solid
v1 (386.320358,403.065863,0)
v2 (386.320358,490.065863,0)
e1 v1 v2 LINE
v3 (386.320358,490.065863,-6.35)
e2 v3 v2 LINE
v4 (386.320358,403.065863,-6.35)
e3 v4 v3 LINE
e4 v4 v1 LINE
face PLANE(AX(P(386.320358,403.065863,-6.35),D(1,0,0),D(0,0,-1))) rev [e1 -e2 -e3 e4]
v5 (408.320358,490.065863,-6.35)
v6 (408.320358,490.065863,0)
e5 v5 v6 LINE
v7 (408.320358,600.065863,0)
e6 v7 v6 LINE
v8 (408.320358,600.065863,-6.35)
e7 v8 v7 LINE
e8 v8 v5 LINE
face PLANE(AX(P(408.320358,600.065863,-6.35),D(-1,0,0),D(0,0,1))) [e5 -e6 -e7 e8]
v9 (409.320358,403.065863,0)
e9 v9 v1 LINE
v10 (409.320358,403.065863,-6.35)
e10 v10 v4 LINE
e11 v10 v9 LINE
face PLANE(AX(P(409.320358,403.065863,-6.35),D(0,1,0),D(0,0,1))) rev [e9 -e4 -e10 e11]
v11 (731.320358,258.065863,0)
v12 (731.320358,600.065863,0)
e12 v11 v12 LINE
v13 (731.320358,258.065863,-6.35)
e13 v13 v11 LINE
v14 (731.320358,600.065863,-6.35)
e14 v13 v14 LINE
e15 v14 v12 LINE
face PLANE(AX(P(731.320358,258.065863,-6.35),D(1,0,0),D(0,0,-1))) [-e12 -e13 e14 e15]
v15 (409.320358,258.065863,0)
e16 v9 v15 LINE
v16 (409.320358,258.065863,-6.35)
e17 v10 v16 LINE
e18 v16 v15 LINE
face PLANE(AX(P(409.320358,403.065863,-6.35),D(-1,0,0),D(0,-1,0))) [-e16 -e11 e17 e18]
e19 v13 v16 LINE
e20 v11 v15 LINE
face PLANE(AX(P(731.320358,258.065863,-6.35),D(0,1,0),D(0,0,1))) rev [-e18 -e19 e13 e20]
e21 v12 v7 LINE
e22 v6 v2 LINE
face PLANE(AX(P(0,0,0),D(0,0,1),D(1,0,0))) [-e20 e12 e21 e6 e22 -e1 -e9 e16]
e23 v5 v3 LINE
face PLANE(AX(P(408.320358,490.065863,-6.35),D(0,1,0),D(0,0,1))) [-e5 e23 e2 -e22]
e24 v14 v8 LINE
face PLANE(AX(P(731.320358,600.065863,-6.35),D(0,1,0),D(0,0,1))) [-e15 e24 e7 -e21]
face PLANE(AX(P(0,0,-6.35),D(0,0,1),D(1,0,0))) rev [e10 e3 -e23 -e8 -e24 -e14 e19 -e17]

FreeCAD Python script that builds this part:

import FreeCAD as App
import Part
import Sketcher

V = App.Vector


def add_polygon(sketch, points):
    """Adds a closed chain of lines whose ends are joined by coincident constraints."""
    first, n = sketch.GeometryCount, len(points)
    for a, b in zip(points, points[1:] + points[:1]):
        sketch.addGeometry(Part.LineSegment(App.Vector(*a, 0), App.Vector(*b, 0)), False)
    for i in range(n):
        sketch.addConstraint(Sketcher.Constraint("Coincident", first + i, 2, first + (i + 1) % n, 1))

doc = App.newDocument("Part")
params = doc.addObject("Spreadsheet::Sheet", "Params")
for row, (alias, value) in enumerate([
    ("sketch1_width", "322 mm"),
    ("sketch1_width2", "323 mm"),
    ("sketch1_width3", "22 mm"),
    ("sketch1_height", "342 mm"),
    ("sketch1_height2", "110 mm"),
    ("pad1_length", "6.35 mm"),
], start=1):
    params.set(f"A{row}", alias)
    params.set(f"B{row}", "=" + value)
    params.setAlias(f"B{row}", alias)

body = doc.addObject("PartDesign::Body", "Body")

# Sketch on XY plane
sketch1 = body.newObject("Sketcher::SketchObject", "Sketch")
sketch1.AttachmentSupport = (doc.getObject("XY_Plane"), [""])
sketch1.MapMode = "FlatFace"
add_polygon(sketch1, [(409, 258), (731, 258), (731, 600), (408, 600), (408, 490), (386, 490), (386, 403), (409, 403)])  # lines 0-7
sketch1.addConstraint(Sketcher.Constraint("Horizontal", 0))
sketch1.addConstraint(Sketcher.Constraint("Vertical", 1))
sketch1.addConstraint(Sketcher.Constraint("Horizontal", 2))
sketch1.addConstraint(Sketcher.Constraint("Vertical", 3))
sketch1.addConstraint(Sketcher.Constraint("Horizontal", 4))
sketch1.addConstraint(Sketcher.Constraint("Vertical", 5))
sketch1.addConstraint(Sketcher.Constraint("Horizontal", 6))
sketch1.addConstraint(Sketcher.Constraint("Vertical", 7))
sketch1.addConstraint(Sketcher.Constraint("DistanceX", 0, 1, 0, 2, 322.0))
sketch1.addConstraint(Sketcher.Constraint("DistanceX", 2, 2, 2, 1, 323.0))
sketch1.addConstraint(Sketcher.Constraint("DistanceX", 4, 2, 4, 1, 22.0))
sketch1.addConstraint(Sketcher.Constraint("DistanceY", 1, 1, 1, 2, 342.0))
sketch1.addConstraint(Sketcher.Constraint("DistanceY", 3, 2, 3, 1, 110.0))
sketch1.addConstraint(Sketcher.Constraint("DistanceY", 5, 2, 5, 1, 87.0))
sketch1.addConstraint(Sketcher.Constraint("DistanceX", -1, 1, 0, 2, 731.320358))
sketch1.addConstraint(Sketcher.Constraint("DistanceY", -1, 1, 0, 2, 258.065863))
sketch1.setExpression("Constraints[16]", "Params.sketch1_width")
sketch1.setExpression("Constraints[17]", "Params.sketch1_width2")
sketch1.setExpression("Constraints[18]", "Params.sketch1_width3")
sketch1.setExpression("Constraints[19]", "Params.sketch1_height")
sketch1.setExpression("Constraints[20]", "Params.sketch1_height2")
pad1 = body.newObject("PartDesign::Pad", "Pad")
pad1.Profile = sketch1
pad1.setExpression("Length", "Params.pad1_length")
pad1.Reversed = True

doc.recompute()
